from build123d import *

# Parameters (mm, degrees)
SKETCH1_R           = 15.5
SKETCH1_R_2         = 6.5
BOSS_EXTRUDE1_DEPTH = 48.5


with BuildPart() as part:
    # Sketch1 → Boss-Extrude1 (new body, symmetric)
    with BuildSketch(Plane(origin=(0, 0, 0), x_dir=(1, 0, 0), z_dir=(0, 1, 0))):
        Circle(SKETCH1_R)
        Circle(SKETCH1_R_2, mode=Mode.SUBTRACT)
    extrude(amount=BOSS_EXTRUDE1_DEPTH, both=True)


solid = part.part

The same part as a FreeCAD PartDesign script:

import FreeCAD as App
import Part
import Sketcher
from FreeCAD import Vector

doc = App.newDocument("Part")
body = doc.addObject("PartDesign::Body", "Body")

# Sketch on XZ plane
sketch1 = doc.addObject("Sketcher::SketchObject", "Sketch")
body.addObject(sketch1)
sketch1.AttachmentSupport = (doc.XZ_Plane, [""])
sketch1.MapMode = "FlatFace"
sketch1.addGeometry([
    Part.Circle(Vector(0, 0, 0), Vector(0, 0, 1), 15.5),
    Part.Circle(Vector(0, 0, 0), Vector(0, 0, 1), 6.5),
], False)
sketch1.addConstraint([
    Sketcher.Constraint("Coincident", 0, 3, -1, 1),
    Sketcher.Constraint("Coincident", 1, 3, -1, 1),
    Sketcher.Constraint("Diameter", 0, 31.0),
    Sketcher.Constraint("Diameter", 1, 13.0),
])
pad1 = doc.addObject("PartDesign::Pad", "Pad")
body.addObject(pad1)
pad1.Profile = sketch1
pad1.Length = 97
pad1.Midplane = True

doc.recompute()
